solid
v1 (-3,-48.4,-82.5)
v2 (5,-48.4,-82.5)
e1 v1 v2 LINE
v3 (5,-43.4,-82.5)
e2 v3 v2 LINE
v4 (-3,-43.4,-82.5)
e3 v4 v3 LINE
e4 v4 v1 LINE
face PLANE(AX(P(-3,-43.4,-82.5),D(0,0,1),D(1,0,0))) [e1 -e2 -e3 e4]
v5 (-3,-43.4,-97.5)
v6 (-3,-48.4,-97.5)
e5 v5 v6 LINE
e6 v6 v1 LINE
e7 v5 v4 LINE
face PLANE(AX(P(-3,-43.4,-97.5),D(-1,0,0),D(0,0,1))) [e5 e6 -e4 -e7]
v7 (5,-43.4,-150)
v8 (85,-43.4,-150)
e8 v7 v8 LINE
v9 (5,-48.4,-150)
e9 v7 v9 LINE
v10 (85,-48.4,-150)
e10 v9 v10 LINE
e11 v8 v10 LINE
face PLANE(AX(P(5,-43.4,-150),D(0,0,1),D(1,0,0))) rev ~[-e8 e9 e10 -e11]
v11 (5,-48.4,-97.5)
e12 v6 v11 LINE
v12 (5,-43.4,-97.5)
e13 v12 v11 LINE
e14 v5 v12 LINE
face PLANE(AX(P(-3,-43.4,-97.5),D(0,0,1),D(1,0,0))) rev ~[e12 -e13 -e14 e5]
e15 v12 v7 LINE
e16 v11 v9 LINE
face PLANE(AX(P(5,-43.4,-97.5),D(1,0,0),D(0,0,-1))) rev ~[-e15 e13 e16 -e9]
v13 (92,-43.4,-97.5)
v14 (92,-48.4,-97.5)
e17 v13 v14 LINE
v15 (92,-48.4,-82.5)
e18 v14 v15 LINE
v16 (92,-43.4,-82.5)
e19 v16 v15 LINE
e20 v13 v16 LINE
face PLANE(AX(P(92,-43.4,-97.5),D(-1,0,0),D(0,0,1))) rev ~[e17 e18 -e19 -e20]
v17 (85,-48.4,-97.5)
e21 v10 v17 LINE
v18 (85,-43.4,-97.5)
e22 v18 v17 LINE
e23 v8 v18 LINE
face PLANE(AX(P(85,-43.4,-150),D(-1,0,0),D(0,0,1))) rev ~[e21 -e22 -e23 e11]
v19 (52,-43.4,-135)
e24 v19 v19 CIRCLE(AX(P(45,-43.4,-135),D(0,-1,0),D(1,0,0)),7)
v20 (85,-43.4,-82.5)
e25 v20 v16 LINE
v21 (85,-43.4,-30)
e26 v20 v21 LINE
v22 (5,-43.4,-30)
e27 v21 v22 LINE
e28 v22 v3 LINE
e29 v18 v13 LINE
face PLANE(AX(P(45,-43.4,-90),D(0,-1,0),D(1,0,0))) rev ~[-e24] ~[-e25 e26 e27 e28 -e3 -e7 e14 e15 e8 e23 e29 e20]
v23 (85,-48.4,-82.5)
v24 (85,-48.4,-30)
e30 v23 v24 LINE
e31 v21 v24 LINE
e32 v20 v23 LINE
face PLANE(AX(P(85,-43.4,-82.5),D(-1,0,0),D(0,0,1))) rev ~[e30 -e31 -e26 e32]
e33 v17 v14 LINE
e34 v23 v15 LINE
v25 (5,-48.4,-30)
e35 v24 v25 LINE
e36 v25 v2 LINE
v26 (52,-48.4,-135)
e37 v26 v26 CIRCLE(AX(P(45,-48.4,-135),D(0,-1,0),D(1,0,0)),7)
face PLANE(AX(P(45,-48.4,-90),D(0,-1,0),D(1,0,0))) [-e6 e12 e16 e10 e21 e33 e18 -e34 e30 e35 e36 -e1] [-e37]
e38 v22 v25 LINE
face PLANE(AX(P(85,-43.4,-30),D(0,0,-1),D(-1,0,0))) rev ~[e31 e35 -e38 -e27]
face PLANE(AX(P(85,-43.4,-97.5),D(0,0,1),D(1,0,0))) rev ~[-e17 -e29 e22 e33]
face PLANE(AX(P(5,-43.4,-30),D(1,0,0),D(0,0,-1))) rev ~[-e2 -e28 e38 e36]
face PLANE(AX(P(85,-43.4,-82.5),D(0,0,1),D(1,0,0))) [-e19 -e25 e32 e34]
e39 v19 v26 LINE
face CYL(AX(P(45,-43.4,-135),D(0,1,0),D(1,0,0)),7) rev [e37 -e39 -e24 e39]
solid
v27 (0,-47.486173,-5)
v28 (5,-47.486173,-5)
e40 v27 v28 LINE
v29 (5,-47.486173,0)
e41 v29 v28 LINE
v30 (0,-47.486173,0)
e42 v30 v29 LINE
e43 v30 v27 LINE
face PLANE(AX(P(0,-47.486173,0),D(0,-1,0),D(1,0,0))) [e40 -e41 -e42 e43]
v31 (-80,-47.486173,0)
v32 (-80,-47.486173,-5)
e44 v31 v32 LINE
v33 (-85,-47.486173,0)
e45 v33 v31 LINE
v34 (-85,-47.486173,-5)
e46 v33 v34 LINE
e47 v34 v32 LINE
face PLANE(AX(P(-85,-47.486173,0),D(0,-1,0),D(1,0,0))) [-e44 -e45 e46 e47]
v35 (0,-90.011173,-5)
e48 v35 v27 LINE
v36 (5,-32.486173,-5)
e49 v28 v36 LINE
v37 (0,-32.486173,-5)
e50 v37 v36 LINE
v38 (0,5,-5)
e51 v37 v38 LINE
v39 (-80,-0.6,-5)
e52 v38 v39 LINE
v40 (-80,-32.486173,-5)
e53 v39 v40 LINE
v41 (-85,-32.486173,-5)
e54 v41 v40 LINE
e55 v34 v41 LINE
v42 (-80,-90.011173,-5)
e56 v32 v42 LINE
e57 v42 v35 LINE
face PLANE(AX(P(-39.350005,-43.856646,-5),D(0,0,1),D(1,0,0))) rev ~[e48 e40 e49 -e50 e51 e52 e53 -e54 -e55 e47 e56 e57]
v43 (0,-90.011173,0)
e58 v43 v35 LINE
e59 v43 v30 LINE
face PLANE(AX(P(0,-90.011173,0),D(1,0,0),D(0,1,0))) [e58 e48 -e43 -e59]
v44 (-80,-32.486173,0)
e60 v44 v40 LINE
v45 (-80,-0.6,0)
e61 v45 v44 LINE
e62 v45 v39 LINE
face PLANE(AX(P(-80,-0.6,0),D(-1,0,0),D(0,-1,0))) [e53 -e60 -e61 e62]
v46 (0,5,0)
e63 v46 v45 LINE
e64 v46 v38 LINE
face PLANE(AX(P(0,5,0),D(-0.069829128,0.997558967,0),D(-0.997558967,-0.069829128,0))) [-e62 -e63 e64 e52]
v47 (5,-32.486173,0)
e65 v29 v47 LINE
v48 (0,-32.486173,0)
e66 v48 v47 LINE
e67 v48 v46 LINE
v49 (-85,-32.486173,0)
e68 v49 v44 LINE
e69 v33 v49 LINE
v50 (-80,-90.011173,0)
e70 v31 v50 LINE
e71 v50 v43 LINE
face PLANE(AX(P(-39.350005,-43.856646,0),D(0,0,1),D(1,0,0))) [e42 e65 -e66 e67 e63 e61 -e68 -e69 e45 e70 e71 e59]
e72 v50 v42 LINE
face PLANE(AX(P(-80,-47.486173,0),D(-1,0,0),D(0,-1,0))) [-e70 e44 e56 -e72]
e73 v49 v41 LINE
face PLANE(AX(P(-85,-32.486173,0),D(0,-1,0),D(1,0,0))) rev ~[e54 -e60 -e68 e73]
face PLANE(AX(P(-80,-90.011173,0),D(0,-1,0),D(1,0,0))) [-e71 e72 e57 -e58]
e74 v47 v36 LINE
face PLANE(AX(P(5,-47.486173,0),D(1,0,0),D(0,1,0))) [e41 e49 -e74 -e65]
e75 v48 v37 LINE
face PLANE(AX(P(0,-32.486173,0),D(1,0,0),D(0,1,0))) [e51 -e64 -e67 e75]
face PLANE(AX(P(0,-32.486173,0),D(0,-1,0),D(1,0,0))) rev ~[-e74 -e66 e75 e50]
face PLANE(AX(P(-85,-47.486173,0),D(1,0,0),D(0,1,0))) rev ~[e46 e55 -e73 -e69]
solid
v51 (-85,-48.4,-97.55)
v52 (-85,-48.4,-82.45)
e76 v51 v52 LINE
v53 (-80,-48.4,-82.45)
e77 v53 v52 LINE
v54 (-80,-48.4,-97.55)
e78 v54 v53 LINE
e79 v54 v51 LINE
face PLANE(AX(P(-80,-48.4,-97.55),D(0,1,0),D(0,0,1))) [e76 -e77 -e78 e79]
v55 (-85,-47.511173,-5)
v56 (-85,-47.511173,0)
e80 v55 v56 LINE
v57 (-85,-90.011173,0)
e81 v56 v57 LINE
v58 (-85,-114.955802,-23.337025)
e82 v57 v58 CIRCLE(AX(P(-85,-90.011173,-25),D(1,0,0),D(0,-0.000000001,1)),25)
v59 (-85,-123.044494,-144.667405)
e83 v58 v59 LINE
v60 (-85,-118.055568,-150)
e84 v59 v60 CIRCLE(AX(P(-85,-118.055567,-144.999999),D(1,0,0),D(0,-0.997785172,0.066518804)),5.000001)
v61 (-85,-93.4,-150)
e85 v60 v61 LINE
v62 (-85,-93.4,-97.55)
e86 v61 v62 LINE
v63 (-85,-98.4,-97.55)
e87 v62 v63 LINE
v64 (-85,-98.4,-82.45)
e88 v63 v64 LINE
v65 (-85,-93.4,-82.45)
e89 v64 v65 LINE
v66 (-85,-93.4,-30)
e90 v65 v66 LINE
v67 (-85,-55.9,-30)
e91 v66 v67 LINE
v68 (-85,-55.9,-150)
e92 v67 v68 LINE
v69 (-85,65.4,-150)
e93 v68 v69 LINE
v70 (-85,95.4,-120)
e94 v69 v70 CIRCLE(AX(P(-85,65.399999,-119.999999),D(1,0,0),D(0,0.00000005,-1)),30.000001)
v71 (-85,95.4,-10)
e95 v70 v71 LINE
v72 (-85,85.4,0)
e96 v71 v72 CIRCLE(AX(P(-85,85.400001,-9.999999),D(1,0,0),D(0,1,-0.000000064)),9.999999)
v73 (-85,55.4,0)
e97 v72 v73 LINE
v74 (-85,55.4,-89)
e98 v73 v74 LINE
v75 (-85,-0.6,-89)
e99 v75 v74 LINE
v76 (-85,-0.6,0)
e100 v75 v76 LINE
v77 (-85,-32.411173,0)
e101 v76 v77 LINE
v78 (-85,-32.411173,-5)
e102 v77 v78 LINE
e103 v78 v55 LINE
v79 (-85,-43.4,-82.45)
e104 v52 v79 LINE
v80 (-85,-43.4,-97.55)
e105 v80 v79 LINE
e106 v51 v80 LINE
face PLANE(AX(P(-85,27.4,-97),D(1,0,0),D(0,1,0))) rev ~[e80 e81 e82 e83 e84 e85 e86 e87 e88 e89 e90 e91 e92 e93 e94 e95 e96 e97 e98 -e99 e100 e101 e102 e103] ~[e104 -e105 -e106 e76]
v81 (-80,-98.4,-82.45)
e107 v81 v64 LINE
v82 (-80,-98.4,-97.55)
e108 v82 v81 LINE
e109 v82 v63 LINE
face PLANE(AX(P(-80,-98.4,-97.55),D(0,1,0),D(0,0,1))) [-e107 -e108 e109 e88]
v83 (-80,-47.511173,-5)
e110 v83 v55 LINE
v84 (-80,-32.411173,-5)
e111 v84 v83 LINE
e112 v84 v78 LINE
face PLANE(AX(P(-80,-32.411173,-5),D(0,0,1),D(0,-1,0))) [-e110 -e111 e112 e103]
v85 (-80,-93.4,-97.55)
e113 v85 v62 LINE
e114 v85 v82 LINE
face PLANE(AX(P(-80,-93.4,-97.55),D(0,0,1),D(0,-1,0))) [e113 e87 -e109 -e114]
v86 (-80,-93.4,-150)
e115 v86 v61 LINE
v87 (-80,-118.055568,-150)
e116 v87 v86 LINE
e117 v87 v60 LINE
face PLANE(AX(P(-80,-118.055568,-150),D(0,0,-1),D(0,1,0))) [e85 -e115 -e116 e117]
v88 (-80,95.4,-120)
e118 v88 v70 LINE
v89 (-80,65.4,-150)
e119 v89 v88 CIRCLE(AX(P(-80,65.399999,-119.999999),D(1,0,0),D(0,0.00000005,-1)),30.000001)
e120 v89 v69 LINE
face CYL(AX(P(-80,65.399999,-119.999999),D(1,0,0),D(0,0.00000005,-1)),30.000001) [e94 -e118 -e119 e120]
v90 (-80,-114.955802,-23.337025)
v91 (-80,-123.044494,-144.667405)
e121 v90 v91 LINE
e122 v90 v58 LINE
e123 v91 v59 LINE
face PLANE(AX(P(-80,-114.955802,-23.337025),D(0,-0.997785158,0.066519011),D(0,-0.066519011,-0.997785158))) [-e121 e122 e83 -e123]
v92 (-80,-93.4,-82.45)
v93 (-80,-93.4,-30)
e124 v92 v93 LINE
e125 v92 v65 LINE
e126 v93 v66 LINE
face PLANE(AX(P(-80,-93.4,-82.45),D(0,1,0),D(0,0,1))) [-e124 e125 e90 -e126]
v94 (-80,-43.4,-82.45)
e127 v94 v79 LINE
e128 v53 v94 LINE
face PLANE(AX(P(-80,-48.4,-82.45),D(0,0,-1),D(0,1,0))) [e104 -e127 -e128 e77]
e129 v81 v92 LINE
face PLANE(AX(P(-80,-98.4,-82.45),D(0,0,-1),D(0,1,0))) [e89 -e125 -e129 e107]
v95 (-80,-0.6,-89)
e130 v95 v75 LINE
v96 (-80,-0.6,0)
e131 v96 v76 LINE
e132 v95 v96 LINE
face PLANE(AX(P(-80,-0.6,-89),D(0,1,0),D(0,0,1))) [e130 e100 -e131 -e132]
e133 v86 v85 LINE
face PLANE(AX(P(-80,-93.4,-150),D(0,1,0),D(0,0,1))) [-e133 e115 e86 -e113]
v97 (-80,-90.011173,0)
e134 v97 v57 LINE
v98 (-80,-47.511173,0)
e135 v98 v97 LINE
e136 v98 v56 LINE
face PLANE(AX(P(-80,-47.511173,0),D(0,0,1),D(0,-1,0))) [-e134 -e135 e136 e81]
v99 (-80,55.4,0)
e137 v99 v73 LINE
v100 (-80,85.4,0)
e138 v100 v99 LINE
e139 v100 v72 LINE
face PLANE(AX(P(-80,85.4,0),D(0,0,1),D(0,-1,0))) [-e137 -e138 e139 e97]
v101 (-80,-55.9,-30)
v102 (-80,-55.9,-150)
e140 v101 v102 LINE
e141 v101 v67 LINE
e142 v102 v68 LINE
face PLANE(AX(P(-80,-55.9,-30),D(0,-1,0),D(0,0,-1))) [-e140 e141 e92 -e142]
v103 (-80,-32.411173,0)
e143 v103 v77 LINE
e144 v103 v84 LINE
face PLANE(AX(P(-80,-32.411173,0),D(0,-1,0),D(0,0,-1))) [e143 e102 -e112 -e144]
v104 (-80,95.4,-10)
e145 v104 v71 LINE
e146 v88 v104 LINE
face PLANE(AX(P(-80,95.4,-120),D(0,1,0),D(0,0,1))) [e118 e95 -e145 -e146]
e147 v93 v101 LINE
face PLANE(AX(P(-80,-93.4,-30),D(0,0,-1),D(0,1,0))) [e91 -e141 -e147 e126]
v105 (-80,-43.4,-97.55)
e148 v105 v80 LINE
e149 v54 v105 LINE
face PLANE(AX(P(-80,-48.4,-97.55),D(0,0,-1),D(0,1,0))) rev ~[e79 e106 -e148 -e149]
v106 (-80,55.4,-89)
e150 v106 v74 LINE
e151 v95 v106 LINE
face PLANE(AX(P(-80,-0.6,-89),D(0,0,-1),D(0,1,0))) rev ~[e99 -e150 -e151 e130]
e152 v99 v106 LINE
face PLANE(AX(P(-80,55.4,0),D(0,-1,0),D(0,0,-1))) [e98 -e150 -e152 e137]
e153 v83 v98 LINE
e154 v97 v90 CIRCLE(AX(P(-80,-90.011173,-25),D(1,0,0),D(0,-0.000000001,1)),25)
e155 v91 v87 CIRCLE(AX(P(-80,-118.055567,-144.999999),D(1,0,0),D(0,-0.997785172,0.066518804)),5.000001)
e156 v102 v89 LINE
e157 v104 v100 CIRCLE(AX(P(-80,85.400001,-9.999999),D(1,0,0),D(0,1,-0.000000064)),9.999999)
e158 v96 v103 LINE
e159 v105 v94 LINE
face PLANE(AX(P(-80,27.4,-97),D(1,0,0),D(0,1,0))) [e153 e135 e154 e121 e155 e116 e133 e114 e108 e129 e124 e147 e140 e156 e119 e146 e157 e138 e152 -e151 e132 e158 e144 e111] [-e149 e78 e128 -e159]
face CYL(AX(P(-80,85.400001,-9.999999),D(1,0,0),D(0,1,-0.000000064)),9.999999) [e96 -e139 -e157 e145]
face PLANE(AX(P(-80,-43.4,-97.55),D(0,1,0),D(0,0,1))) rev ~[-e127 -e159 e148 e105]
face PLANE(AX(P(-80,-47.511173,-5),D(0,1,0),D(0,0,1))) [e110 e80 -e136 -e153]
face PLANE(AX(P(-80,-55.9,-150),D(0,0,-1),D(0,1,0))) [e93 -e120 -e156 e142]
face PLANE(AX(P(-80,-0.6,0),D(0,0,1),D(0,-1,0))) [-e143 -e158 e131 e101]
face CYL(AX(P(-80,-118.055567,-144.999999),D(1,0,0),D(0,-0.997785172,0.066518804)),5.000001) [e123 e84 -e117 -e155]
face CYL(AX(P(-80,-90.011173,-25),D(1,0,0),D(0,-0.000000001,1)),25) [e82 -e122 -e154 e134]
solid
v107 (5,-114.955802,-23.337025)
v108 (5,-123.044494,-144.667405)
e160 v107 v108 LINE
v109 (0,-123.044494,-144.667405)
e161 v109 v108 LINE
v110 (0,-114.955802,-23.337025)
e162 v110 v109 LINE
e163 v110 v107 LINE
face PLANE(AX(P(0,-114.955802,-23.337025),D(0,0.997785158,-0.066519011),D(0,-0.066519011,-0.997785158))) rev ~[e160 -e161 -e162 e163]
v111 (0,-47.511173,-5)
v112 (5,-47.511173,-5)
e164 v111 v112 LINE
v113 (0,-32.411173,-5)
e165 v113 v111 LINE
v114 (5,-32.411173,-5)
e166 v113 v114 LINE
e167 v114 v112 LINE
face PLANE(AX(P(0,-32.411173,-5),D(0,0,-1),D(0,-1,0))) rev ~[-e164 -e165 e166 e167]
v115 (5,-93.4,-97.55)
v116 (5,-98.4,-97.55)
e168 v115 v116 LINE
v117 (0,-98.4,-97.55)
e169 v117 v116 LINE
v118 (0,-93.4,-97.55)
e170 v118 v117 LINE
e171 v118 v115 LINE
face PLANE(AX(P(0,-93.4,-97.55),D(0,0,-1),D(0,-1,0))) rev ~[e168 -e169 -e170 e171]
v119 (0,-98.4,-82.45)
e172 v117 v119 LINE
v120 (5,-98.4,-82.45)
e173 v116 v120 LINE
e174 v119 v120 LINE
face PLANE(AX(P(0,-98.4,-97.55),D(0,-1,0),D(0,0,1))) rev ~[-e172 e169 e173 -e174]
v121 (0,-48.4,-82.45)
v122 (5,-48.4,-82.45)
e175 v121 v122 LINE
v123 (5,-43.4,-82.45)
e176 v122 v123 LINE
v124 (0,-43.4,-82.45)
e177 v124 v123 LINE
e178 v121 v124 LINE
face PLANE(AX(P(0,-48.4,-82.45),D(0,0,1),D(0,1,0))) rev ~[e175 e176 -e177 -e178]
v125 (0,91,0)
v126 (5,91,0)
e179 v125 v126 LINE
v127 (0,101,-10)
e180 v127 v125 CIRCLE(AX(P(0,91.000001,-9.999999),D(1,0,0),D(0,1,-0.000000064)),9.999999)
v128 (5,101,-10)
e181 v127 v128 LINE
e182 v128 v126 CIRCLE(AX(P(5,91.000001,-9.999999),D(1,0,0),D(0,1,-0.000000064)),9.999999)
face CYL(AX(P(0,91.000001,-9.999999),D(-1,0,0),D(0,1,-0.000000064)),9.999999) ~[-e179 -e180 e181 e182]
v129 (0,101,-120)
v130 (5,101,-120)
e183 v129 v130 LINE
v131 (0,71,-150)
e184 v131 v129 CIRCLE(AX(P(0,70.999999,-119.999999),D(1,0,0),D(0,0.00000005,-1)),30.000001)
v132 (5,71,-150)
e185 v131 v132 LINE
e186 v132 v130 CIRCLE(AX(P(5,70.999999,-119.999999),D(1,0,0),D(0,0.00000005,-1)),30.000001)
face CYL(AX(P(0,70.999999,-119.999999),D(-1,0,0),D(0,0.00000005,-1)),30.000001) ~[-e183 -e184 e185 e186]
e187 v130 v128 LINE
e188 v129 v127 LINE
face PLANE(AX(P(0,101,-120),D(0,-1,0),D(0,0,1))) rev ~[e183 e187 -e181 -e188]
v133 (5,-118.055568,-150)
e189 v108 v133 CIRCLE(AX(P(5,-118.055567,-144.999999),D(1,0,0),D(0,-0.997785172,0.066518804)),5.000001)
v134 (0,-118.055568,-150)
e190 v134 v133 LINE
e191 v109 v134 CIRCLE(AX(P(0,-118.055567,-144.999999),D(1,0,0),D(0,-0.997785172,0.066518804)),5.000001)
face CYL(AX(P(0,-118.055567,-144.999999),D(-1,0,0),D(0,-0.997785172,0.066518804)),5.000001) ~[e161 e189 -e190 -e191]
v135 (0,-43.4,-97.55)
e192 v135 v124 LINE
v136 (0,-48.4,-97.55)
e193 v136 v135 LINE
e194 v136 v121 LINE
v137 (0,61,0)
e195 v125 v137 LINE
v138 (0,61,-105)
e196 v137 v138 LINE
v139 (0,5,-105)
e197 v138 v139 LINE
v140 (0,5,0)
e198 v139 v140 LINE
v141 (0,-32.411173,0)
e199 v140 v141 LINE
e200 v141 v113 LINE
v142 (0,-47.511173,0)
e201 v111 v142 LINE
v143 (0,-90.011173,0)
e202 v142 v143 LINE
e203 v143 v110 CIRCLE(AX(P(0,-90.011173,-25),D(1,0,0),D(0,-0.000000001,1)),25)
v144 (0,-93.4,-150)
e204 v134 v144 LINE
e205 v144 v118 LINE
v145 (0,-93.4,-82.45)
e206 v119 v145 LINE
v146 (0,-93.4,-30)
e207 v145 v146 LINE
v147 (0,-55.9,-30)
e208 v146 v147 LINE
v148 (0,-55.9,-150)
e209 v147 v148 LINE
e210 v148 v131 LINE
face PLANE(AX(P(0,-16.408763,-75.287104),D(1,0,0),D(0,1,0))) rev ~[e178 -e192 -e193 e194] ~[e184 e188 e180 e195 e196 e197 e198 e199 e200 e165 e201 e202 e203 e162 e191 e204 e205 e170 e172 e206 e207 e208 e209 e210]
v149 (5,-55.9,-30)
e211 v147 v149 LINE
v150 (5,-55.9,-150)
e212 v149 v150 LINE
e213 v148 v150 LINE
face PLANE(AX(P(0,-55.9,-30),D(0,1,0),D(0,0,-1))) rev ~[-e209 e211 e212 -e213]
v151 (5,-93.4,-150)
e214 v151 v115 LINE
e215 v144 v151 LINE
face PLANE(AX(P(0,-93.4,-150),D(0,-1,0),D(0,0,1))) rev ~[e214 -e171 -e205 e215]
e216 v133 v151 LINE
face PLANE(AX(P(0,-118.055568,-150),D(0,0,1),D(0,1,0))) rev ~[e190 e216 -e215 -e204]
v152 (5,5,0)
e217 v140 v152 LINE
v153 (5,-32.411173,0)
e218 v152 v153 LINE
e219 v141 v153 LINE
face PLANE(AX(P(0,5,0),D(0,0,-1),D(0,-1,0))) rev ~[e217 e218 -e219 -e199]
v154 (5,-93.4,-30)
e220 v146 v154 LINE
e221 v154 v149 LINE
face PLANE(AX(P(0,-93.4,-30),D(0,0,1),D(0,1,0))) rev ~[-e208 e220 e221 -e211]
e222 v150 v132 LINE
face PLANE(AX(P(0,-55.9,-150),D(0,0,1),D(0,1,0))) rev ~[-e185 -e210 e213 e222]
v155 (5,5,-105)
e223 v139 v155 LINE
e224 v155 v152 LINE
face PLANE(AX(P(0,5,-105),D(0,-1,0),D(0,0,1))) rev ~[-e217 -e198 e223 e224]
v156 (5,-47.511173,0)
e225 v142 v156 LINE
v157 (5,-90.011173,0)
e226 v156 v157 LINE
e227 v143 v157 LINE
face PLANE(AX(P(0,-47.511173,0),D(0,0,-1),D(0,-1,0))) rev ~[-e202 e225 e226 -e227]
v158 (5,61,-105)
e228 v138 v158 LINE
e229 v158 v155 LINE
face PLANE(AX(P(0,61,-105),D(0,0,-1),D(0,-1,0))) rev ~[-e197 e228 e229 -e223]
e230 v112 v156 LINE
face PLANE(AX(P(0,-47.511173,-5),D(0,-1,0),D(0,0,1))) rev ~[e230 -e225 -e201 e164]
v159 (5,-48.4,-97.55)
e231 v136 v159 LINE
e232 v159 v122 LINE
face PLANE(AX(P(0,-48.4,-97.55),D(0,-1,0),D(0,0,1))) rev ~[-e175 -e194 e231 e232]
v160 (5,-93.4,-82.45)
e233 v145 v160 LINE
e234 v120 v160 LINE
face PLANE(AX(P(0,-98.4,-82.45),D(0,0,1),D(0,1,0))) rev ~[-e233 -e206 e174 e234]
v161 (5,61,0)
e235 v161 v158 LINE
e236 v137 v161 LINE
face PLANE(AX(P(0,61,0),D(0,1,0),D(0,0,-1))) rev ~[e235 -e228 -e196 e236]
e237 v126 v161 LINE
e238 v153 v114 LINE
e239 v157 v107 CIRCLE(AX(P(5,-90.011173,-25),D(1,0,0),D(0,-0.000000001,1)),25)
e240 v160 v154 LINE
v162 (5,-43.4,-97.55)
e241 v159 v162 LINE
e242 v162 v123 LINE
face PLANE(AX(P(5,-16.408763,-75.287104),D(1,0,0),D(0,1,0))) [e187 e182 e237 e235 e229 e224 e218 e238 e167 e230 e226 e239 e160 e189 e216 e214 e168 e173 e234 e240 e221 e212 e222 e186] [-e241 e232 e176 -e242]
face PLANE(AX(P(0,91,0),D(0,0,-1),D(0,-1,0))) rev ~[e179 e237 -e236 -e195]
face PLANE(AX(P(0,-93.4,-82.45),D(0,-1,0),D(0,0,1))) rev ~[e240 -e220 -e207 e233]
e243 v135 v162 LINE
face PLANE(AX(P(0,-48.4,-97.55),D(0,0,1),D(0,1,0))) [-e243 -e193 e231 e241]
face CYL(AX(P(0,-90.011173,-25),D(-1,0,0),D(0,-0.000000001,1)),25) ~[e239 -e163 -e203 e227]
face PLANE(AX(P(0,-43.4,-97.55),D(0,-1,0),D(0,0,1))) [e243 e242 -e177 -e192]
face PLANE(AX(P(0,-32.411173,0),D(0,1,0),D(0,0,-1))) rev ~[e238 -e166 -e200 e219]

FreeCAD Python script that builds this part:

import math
import FreeCAD as App
import Part
import Sketcher

V = App.Vector
Q = App.Units.Quantity

doc = App.newDocument("Part")
body = doc.addObject("PartDesign::Body", "Body")

# Sketch on YZ plane
sketch1 = body.newObject("Sketcher::SketchObject", "Sketch")
sketch1.AttachmentSupport = (doc.getObject("YZ_Plane"), [""])
sketch1.MapMode = "FlatFace"
sketch1.addGeometry(Part.LineSegment(V(5, -105, 0), V(5, 0, 0)), False)
sketch1.addGeometry(Part.LineSegment(V(5, 0, 0), V(-32.411173, 0, 0)), False)
sketch1.addGeometry(Part.LineSegment(V(-32.411173, 0, 0), V(-32.411173, -5, 0)), False)
sketch1.addGeometry(Part.LineSegment(V(-32.411173, -5, 0), V(-47.511173, -5, 0)), False)
sketch1.addGeometry(Part.LineSegment(V(-47.511173, -5, 0), V(-47.511173, 0, 0)), False)
sketch1.addGeometry(Part.LineSegment(V(-47.511173, 0, 0), V(-90.011173, 0, 0)), False)
sketch1.addGeometry(Part.ArcOfCircle(Part.Circle(V(-90.011173, -25, 0), V(0, 0, 1), 25), math.radians(90), math.radians(176.185926)), False)
sketch1.addGeometry(Part.LineSegment(V(-114.955802, -23.337025, 0), V(-123.044494, -144.667405, 0)), False)
sketch1.addGeometry(Part.ArcOfCircle(Part.Circle(V(-118.055567, -144.999999, 0), V(0, 0, 1), 5.000001), math.radians(176.185937), math.radians(269.999991)), False)
sketch1.addGeometry(Part.LineSegment(V(-118.055568, -150, 0), V(-93.4, -150, 0)), False)
sketch1.addGeometry(Part.LineSegment(V(-93.4, -150, 0), V(-93.4, -97.55, 0)), False)
sketch1.addGeometry(Part.LineSegment(V(-93.4, -97.55, 0), V(-98.4, -97.55, 0)), False)
sketch1.addGeometry(Part.LineSegment(V(-98.4, -97.55, 0), V(-98.4, -82.45, 0)), False)
sketch1.addGeometry(Part.LineSegment(V(-98.4, -82.45, 0), V(-93.4, -82.45, 0)), False)
sketch1.addGeometry(Part.LineSegment(V(-93.4, -82.45, 0), V(-93.4, -30, 0)), False)
sketch1.addGeometry(Part.LineSegment(V(-93.4, -30, 0), V(-55.9, -30, 0)), False)
sketch1.addGeometry(Part.LineSegment(V(-55.9, -30, 0), V(-55.9, -150, 0)), False)
sketch1.addGeometry(Part.LineSegment(V(-55.9, -150, 0), V(71, -150, 0)), False)
sketch1.addGeometry(Part.ArcOfCircle(Part.Circle(V(70.999999, -119.999999, 0), V(0, 0, 1), 30.000001), math.radians(-89.999997), math.radians(-0.000003)), False)
sketch1.addGeometry(Part.LineSegment(V(101, -120, 0), V(101, -10, 0)), False)
sketch1.addGeometry(Part.ArcOfCircle(Part.Circle(V(91.000001, -9.999999, 0), V(0, 0, 1), 9.999999), math.radians(-0.000004), math.radians(90.000004)), False)
sketch1.addGeometry(Part.LineSegment(V(91, 0, 0), V(61, 0, 0)), False)
sketch1.addGeometry(Part.LineSegment(V(61, 0, 0), V(61, -105, 0)), False)
sketch1.addGeometry(Part.LineSegment(V(61, -105, 0), V(5, -105, 0)), False)
sketch1.addGeometry(Part.LineSegment(V(-43.4, -97.55, 0), V(-48.4, -97.55, 0)), False)
sketch1.addGeometry(Part.LineSegment(V(-48.4, -97.55, 0), V(-48.4, -82.45, 0)), False)
sketch1.addGeometry(Part.LineSegment(V(-48.4, -82.45, 0), V(-43.4, -82.45, 0)), False)
sketch1.addGeometry(Part.LineSegment(V(-43.4, -82.45, 0), V(-43.4, -97.55, 0)), False)
sketch1.addConstraint(Sketcher.Constraint("Coincident", 0, 2, 1, 1))
sketch1.addConstraint(Sketcher.Constraint("Coincident", 1, 2, 2, 1))
sketch1.addConstraint(Sketcher.Constraint("Coincident", 2, 2, 3, 1))
sketch1.addConstraint(Sketcher.Constraint("Coincident", 3, 2, 4, 1))
sketch1.addConstraint(Sketcher.Constraint("Coincident", 4, 2, 5, 1))
sketch1.addConstraint(Sketcher.Constraint("Tangent", 5, 2, 6, 1))
sketch1.addConstraint(Sketcher.Constraint("Tangent", 6, 2, 7, 1))
sketch1.addConstraint(Sketcher.Constraint("Tangent", 7, 2, 8, 1))
sketch1.addConstraint(Sketcher.Constraint("Tangent", 8, 2, 9, 1))
sketch1.addConstraint(Sketcher.Constraint("Coincident", 9, 2, 10, 1))
sketch1.addConstraint(Sketcher.Constraint("Coincident", 10, 2, 11, 1))
sketch1.addConstraint(Sketcher.Constraint("Coincident", 11, 2, 12, 1))
sketch1.addConstraint(Sketcher.Constraint("Coincident", 12, 2, 13, 1))
sketch1.addConstraint(Sketcher.Constraint("Coincident", 13, 2, 14, 1))
sketch1.addConstraint(Sketcher.Constraint("Coincident", 14, 2, 15, 1))
sketch1.addConstraint(Sketcher.Constraint("Coincident", 15, 2, 16, 1))
sketch1.addConstraint(Sketcher.Constraint("Coincident", 16, 2, 17, 1))
sketch1.addConstraint(Sketcher.Constraint("Tangent", 17, 2, 18, 1))
sketch1.addConstraint(Sketcher.Constraint("Tangent", 18, 2, 19, 1))
sketch1.addConstraint(Sketcher.Constraint("Tangent", 19, 2, 20, 1))
sketch1.addConstraint(Sketcher.Constraint("Tangent", 20, 2, 21, 1))
sketch1.addConstraint(Sketcher.Constraint("Coincident", 21, 2, 22, 1))
sketch1.addConstraint(Sketcher.Constraint("Coincident", 22, 2, 23, 1))
sketch1.addConstraint(Sketcher.Constraint("Coincident", 23, 2, 0, 1))
sketch1.addConstraint(Sketcher.Constraint("Coincident", 24, 2, 25, 1))
sketch1.addConstraint(Sketcher.Constraint("Coincident", 25, 2, 26, 1))
sketch1.addConstraint(Sketcher.Constraint("Coincident", 26, 2, 27, 1))
sketch1.addConstraint(Sketcher.Constraint("Coincident", 27, 2, 24, 1))
sketch1.addConstraint(Sketcher.Constraint("Vertical", 0))
sketch1.addConstraint(Sketcher.Constraint("Horizontal", 1))
sketch1.addConstraint(Sketcher.Constraint("Vertical", 2))
sketch1.addConstraint(Sketcher.Constraint("Horizontal", 3))
sketch1.addConstraint(Sketcher.Constraint("Vertical", 4))
sketch1.addConstraint(Sketcher.Constraint("Horizontal", 5))
sketch1.addConstraint(Sketcher.Constraint("Horizontal", 9))
sketch1.addConstraint(Sketcher.Constraint("Vertical", 10))
sketch1.addConstraint(Sketcher.Constraint("Horizontal", 11))
sketch1.addConstraint(Sketcher.Constraint("Vertical", 12))
sketch1.addConstraint(Sketcher.Constraint("Horizontal", 13))
sketch1.addConstraint(Sketcher.Constraint("Vertical", 14))
sketch1.addConstraint(Sketcher.Constraint("Horizontal", 15))
sketch1.addConstraint(Sketcher.Constraint("Vertical", 16))
sketch1.addConstraint(Sketcher.Constraint("Horizontal", 17))
sketch1.addConstraint(Sketcher.Constraint("Vertical", 19))
sketch1.addConstraint(Sketcher.Constraint("Horizontal", 21))
sketch1.addConstraint(Sketcher.Constraint("Vertical", 22))
sketch1.addConstraint(Sketcher.Constraint("Horizontal", 23))
sketch1.addConstraint(Sketcher.Constraint("Horizontal", 24))
sketch1.addConstraint(Sketcher.Constraint("Vertical", 25))
sketch1.addConstraint(Sketcher.Constraint("Horizontal", 26))
sketch1.addConstraint(Sketcher.Constraint("Vertical", 27))
sketch1.addConstraint(Sketcher.Constraint("PointOnObject", 0, 2, -1))
sketch1.addConstraint(Sketcher.Constraint("PointOnObject", 4, 2, -1))
sketch1.addConstraint(Sketcher.Constraint("PointOnObject", 20, 2, -1))
sketch1.addConstraint(Sketcher.Constraint("Horizontal", 9, 2, 16, 2))
sketch1.addConstraint(Sketcher.Constraint("Horizontal", 11, 2, 24, 2))
sketch1.addConstraint(Sketcher.Constraint("Horizontal", 13, 2, 25, 2))
sketch1.addConstraint(Sketcher.Constraint("Vertical", 10, 2, 13, 2))
sketch1.addConstraint(Sketcher.Constraint("Equal", 13, 24))
sketch1.addConstraint(Sketcher.Constraint("Equal", 26, 2))
sketch1.addConstraint(Sketcher.Constraint("Equal", 3, 12))
sketch1.addConstraint(Sketcher.Constraint("Equal", 10, 14))
sketch1.addConstraint(Sketcher.Constraint("Radius", 6, Q("25 mm")))
sketch1.addConstraint(Sketcher.Constraint("Radius", 8, Q("5.000001 mm")))
sketch1.addConstraint(Sketcher.Constraint("Radius", 18, Q("30.000001 mm")))
sketch1.addConstraint(Sketcher.Constraint("Radius", 20, Q("9.999999 mm")))
sketch1.addConstraint(Sketcher.Constraint("DistanceX", 11, 2, 11, 1, Q("5 mm")))
sketch1.addConstraint(Sketcher.Constraint("DistanceX", 21, 2, 21, 1, Q("30 mm")))
sketch1.addConstraint(Sketcher.Constraint("DistanceX", 23, 2, 23, 1, Q("56 mm")))
sketch1.addConstraint(Sketcher.Constraint("DistanceY", 0, 1, 0, 2, Q("105 mm")))
sketch1.addConstraint(Sketcher.Constraint("DistanceY", 16, 2, 16, 1, Q("120 mm")))
sketch1.addConstraint(Sketcher.Constraint("DistanceY", 19, 1, 19, 2, Q("110 mm")))
sketch1.addConstraint(Sketcher.Constraint("DistanceX", 3, 2, 3, 1, Q("15.1 mm")))
sketch1.addConstraint(Sketcher.Constraint("DistanceX", 5, 2, 5, 1, Q("42.5 mm")))
sketch1.addConstraint(Sketcher.Constraint("DistanceX", 15, 1, 15, 2, Q("37.5 mm")))
sketch1.addConstraint(Sketcher.Constraint("DistanceX", 17, 1, 17, 2, Q("126.9 mm")))
sketch1.addConstraint(Sketcher.Constraint("DistanceX", -1, 1, 18, 3, Q("70.999999 mm")))
sketch1.addConstraint(Sketcher.Constraint("DistanceX", 10, 2, 24, 2, Q("45 mm")))
sketch1.addConstraint(Sketcher.Constraint("DistanceX", 1, 2, 1, 1, Q("37.411173 mm")))
sketch1.addConstraint(Sketcher.Constraint("DistanceX", 9, 1, 9, 2, Q("24.655568 mm")))
pad1 = body.newObject("PartDesign::Pad", "Pad")
pad1.Profile = sketch1
pad1.Length = 5
body2 = doc.addObject("PartDesign::Body", "Body001")

# Sketch on XZ plane
sketch2 = body2.newObject("Sketcher::SketchObject", "Sketch001")
sketch2.AttachmentSupport = (doc.getObject("XZ_Plane001"), [""])
sketch2.MapMode = "FlatFace"
sketch2.AttachmentOffset = App.Placement(V(0, 0, 43.4), App.Rotation())
sketch2.addGeometry(Part.LineSegment(V(85, -30, 0), V(5, -30, 0)), False)
sketch2.addGeometry(Part.LineSegment(V(5, -30, 0), V(5, -82.5, 0)), False)
sketch2.addGeometry(Part.LineSegment(V(5, -82.5, 0), V(-3, -82.5, 0)), False)
sketch2.addGeometry(Part.LineSegment(V(-3, -82.5, 0), V(-3, -97.5, 0)), False)
sketch2.addGeometry(Part.LineSegment(V(-3, -97.5, 0), V(5, -97.5, 0)), False)
sketch2.addGeometry(Part.LineSegment(V(5, -97.5, 0), V(5, -150, 0)), False)
sketch2.addGeometry(Part.LineSegment(V(5, -150, 0), V(85, -150, 0)), False)
sketch2.addGeometry(Part.LineSegment(V(85, -150, 0), V(85, -97.5, 0)), False)
sketch2.addGeometry(Part.LineSegment(V(85, -97.5, 0), V(92, -97.5, 0)), False)
sketch2.addGeometry(Part.LineSegment(V(92, -97.5, 0), V(92, -82.5, 0)), False)
sketch2.addGeometry(Part.LineSegment(V(92, -82.5, 0), V(85, -82.5, 0)), False)
sketch2.addGeometry(Part.LineSegment(V(85, -82.5, 0), V(85, -30, 0)), False)
sketch2.addGeometry(Part.Circle(V(45, -135, 0), V(0, 0, 1), 7), False)
sketch2.addConstraint(Sketcher.Constraint("Coincident", 0, 2, 1, 1))
sketch2.addConstraint(Sketcher.Constraint("Coincident", 1, 2, 2, 1))
sketch2.addConstraint(Sketcher.Constraint("Coincident", 2, 2, 3, 1))
sketch2.addConstraint(Sketcher.Constraint("Coincident", 3, 2, 4, 1))
sketch2.addConstraint(Sketcher.Constraint("Coincident", 4, 2, 5, 1))
sketch2.addConstraint(Sketcher.Constraint("Coincident", 5, 2, 6, 1))
sketch2.addConstraint(Sketcher.Constraint("Coincident", 6, 2, 7, 1))
sketch2.addConstraint(Sketcher.Constraint("Coincident", 7, 2, 8, 1))
sketch2.addConstraint(Sketcher.Constraint("Coincident", 8, 2, 9, 1))
sketch2.addConstraint(Sketcher.Constraint("Coincident", 9, 2, 10, 1))
sketch2.addConstraint(Sketcher.Constraint("Coincident", 10, 2, 11, 1))
sketch2.addConstraint(Sketcher.Constraint("Coincident", 11, 2, 0, 1))
sketch2.addConstraint(Sketcher.Constraint("Horizontal", 0))
sketch2.addConstraint(Sketcher.Constraint("Vertical", 1))
sketch2.addConstraint(Sketcher.Constraint("Horizontal", 2))
sketch2.addConstraint(Sketcher.Constraint("Vertical", 3))
sketch2.addConstraint(Sketcher.Constraint("Horizontal", 4))
sketch2.addConstraint(Sketcher.Constraint("Vertical", 5))
sketch2.addConstraint(Sketcher.Constraint("Horizontal", 6))
sketch2.addConstraint(Sketcher.Constraint("Vertical", 7))
sketch2.addConstraint(Sketcher.Constraint("Horizontal", 8))
sketch2.addConstraint(Sketcher.Constraint("Vertical", 9))
sketch2.addConstraint(Sketcher.Constraint("Horizontal", 10))
sketch2.addConstraint(Sketcher.Constraint("Vertical", 11))
sketch2.addConstraint(Sketcher.Constraint("Horizontal", 4, 2, 7, 2))
sketch2.addConstraint(Sketcher.Constraint("Horizontal", 2, 2, 9, 2))
sketch2.addConstraint(Sketcher.Constraint("Vertical", 1, 2, 4, 2))
sketch2.addConstraint(Sketcher.Constraint("Vertical", 7, 2, 10, 2))
sketch2.addConstraint(Sketcher.Constraint("Equal", 1, 5))
sketch2.addConstraint(Sketcher.Constraint("Diameter", 12, Q("14 mm")))
sketch2.addConstraint(Sketcher.Constraint("DistanceX", 0, 2, 0, 1, Q("80 mm")))
sketch2.addConstraint(Sketcher.Constraint("DistanceX", 2, 2, 2, 1, Q("8 mm")))
sketch2.addConstraint(Sketcher.Constraint("DistanceX", 8, 1, 8, 2, Q("7 mm")))
sketch2.addConstraint(Sketcher.Constraint("DistanceY", 3, 2, 3, 1, Q("15 mm")))
sketch2.addConstraint(Sketcher.Constraint("DistanceY", 1, 2, 1, 1, Q("52.5 mm")))
sketch2.addConstraint(Sketcher.Constraint("DistanceX", -1, 1, 12, 3, Q("45 mm")))
sketch2.addConstraint(Sketcher.Constraint("DistanceY", 12, 3, -1, 1, Q("135 mm")))
sketch2.addConstraint(Sketcher.Constraint("DistanceX", -1, 1, 0, 2, Q("5 mm")))
sketch2.addConstraint(Sketcher.Constraint("DistanceY", 0, 2, -1, 1, Q("30 mm")))
pad2 = body2.newObject("PartDesign::Pad", "Pad001")
pad2.Profile = sketch2
pad2.Length = 5
body3 = doc.addObject("PartDesign::Body", "Body002")

# Sketch on YZ plane
sketch3 = body3.newObject("Sketcher::SketchObject", "Sketch002")
sketch3.AttachmentSupport = (doc.getObject("YZ_Plane002"), [""])
sketch3.MapMode = "FlatFace"
sketch3.AttachmentOffset = App.Placement(V(0, 0, -80), App.Rotation())
sketch3.addGeometry(Part.LineSegment(V(55.4, -89, 0), V(-0.6, -89, 0)), False)
sketch3.addGeometry(Part.LineSegment(V(-0.6, -89, 0), V(-0.6, 0, 0)), False)
sketch3.addGeometry(Part.LineSegment(V(-0.6, 0, 0), V(-32.411173, 0, 0)), False)
sketch3.addGeometry(Part.LineSegment(V(-32.411173, 0, 0), V(-32.411173, -5, 0)), False)
sketch3.addGeometry(Part.LineSegment(V(-32.411173, -5, 0), V(-47.511173, -5, 0)), False)
sketch3.addGeometry(Part.LineSegment(V(-47.511173, -5, 0), V(-47.511173, 0, 0)), False)
sketch3.addGeometry(Part.LineSegment(V(-47.511173, 0, 0), V(-90.011173, 0, 0)), False)
sketch3.addGeometry(Part.ArcOfCircle(Part.Circle(V(-90.011173, -25, 0), V(0, 0, 1), 25), math.radians(90), math.radians(176.185926)), False)
sketch3.addGeometry(Part.LineSegment(V(-114.955802, -23.337025, 0), V(-123.044494, -144.667405, 0)), False)
sketch3.addGeometry(Part.ArcOfCircle(Part.Circle(V(-118.055567, -144.999999, 0), V(0, 0, 1), 5.000001), math.radians(176.185937), math.radians(269.999991)), False)
sketch3.addGeometry(Part.LineSegment(V(-118.055568, -150, 0), V(-93.4, -150, 0)), False)
sketch3.addGeometry(Part.LineSegment(V(-93.4, -150, 0), V(-93.4, -97.55, 0)), False)
sketch3.addGeometry(Part.LineSegment(V(-93.4, -97.55, 0), V(-98.4, -97.55, 0)), False)
sketch3.addGeometry(Part.LineSegment(V(-98.4, -97.55, 0), V(-98.4, -82.45, 0)), False)
sketch3.addGeometry(Part.LineSegment(V(-98.4, -82.45, 0), V(-93.4, -82.45, 0)), False)
sketch3.addGeometry(Part.LineSegment(V(-93.4, -82.45, 0), V(-93.4, -30, 0)), False)
sketch3.addGeometry(Part.LineSegment(V(-93.4, -30, 0), V(-55.9, -30, 0)), False)
sketch3.addGeometry(Part.LineSegment(V(-55.9, -30, 0), V(-55.9, -150, 0)), False)
sketch3.addGeometry(Part.LineSegment(V(-55.9, -150, 0), V(65.4, -150, 0)), False)
sketch3.addGeometry(Part.ArcOfCircle(Part.Circle(V(65.399999, -119.999999, 0), V(0, 0, 1), 30.000001), math.radians(-89.999997), math.radians(-0.000003)), False)
sketch3.addGeometry(Part.LineSegment(V(95.4, -120, 0), V(95.4, -10, 0)), False)
sketch3.addGeometry(Part.ArcOfCircle(Part.Circle(V(85.400001, -9.999999, 0), V(0, 0, 1), 9.999999), math.radians(-0.000004), math.radians(90.000004)), False)
sketch3.addGeometry(Part.LineSegment(V(85.4, 0, 0), V(55.4, 0, 0)), False)
sketch3.addGeometry(Part.LineSegment(V(55.4, 0, 0), V(55.4, -89, 0)), False)
sketch3.addGeometry(Part.LineSegment(V(-43.4, -97.55, 0), V(-48.4, -97.55, 0)), False)
sketch3.addGeometry(Part.LineSegment(V(-48.4, -97.55, 0), V(-48.4, -82.45, 0)), False)
sketch3.addGeometry(Part.LineSegment(V(-48.4, -82.45, 0), V(-43.4, -82.45, 0)), False)
sketch3.addGeometry(Part.LineSegment(V(-43.4, -82.45, 0), V(-43.4, -97.55, 0)), False)
sketch3.addConstraint(Sketcher.Constraint("Coincident", 0, 2, 1, 1))
sketch3.addConstraint(Sketcher.Constraint("Coincident", 1, 2, 2, 1))
sketch3.addConstraint(Sketcher.Constraint("Coincident", 2, 2, 3, 1))
sketch3.addConstraint(Sketcher.Constraint("Coincident", 3, 2, 4, 1))
sketch3.addConstraint(Sketcher.Constraint("Coincident", 4, 2, 5, 1))
sketch3.addConstraint(Sketcher.Constraint("Coincident", 5, 2, 6, 1))
sketch3.addConstraint(Sketcher.Constraint("Tangent", 6, 2, 7, 1))
sketch3.addConstraint(Sketcher.Constraint("Tangent", 7, 2, 8, 1))
sketch3.addConstraint(Sketcher.Constraint("Tangent", 8, 2, 9, 1))
sketch3.addConstraint(Sketcher.Constraint("Tangent", 9, 2, 10, 1))
sketch3.addConstraint(Sketcher.Constraint("Coincident", 10, 2, 11, 1))
sketch3.addConstraint(Sketcher.Constraint("Coincident", 11, 2, 12, 1))
sketch3.addConstraint(Sketcher.Constraint("Coincident", 12, 2, 13, 1))
sketch3.addConstraint(Sketcher.Constraint("Coincident", 13, 2, 14, 1))
sketch3.addConstraint(Sketcher.Constraint("Coincident", 14, 2, 15, 1))
sketch3.addConstraint(Sketcher.Constraint("Coincident", 15, 2, 16, 1))
sketch3.addConstraint(Sketcher.Constraint("Coincident", 16, 2, 17, 1))
sketch3.addConstraint(Sketcher.Constraint("Coincident", 17, 2, 18, 1))
sketch3.addConstraint(Sketcher.Constraint("Tangent", 18, 2, 19, 1))
sketch3.addConstraint(Sketcher.Constraint("Tangent", 19, 2, 20, 1))
sketch3.addConstraint(Sketcher.Constraint("Tangent", 20, 2, 21, 1))
sketch3.addConstraint(Sketcher.Constraint("Tangent", 21, 2, 22, 1))
sketch3.addConstraint(Sketcher.Constraint("Coincident", 22, 2, 23, 1))
sketch3.addConstraint(Sketcher.Constraint("Coincident", 23, 2, 0, 1))
sketch3.addConstraint(Sketcher.Constraint("Coincident", 24, 2, 25, 1))
sketch3.addConstraint(Sketcher.Constraint("Coincident", 25, 2, 26, 1))
sketch3.addConstraint(Sketcher.Constraint("Coincident", 26, 2, 27, 1))
sketch3.addConstraint(Sketcher.Constraint("Coincident", 27, 2, 24, 1))
sketch3.addConstraint(Sketcher.Constraint("Horizontal", 0))
sketch3.addConstraint(Sketcher.Constraint("Vertical", 1))
sketch3.addConstraint(Sketcher.Constraint("Horizontal", 2))
sketch3.addConstraint(Sketcher.Constraint("Vertical", 3))
sketch3.addConstraint(Sketcher.Constraint("Horizontal", 4))
sketch3.addConstraint(Sketcher.Constraint("Vertical", 5))
sketch3.addConstraint(Sketcher.Constraint("Horizontal", 6))
sketch3.addConstraint(Sketcher.Constraint("Horizontal", 10))
sketch3.addConstraint(Sketcher.Constraint("Vertical", 11))
sketch3.addConstraint(Sketcher.Constraint("Horizontal", 12))
sketch3.addConstraint(Sketcher.Constraint("Vertical", 13))
sketch3.addConstraint(Sketcher.Constraint("Horizontal", 14))
sketch3.addConstraint(Sketcher.Constraint("Vertical", 15))
sketch3.addConstraint(Sketcher.Constraint("Horizontal", 16))
sketch3.addConstraint(Sketcher.Constraint("Vertical", 17))
sketch3.addConstraint(Sketcher.Constraint("Horizontal", 18))
sketch3.addConstraint(Sketcher.Constraint("Vertical", 20))
sketch3.addConstraint(Sketcher.Constraint("Horizontal", 22))
sketch3.addConstraint(Sketcher.Constraint("Vertical", 23))
sketch3.addConstraint(Sketcher.Constraint("Horizontal", 24))
sketch3.addConstraint(Sketcher.Constraint("Vertical", 25))
sketch3.addConstraint(Sketcher.Constraint("Horizontal", 26))
sketch3.addConstraint(Sketcher.Constraint("Vertical", 27))
sketch3.addConstraint(Sketcher.Constraint("PointOnObject", 1, 2, -1))
sketch3.addConstraint(Sketcher.Constraint("PointOnObject", 5, 2, -1))
sketch3.addConstraint(Sketcher.Constraint("PointOnObject", 21, 2, -1))
sketch3.addConstraint(Sketcher.Constraint("Horizontal", 10, 2, 17, 2))
sketch3.addConstraint(Sketcher.Constraint("Horizontal", 12, 2, 24, 2))
sketch3.addConstraint(Sketcher.Constraint("Horizontal", 14, 2, 25, 2))
sketch3.addConstraint(Sketcher.Constraint("Vertical", 11, 2, 14, 2))
sketch3.addConstraint(Sketcher.Constraint("Equal", 14, 24))
sketch3.addConstraint(Sketcher.Constraint("Equal", 26, 3))
sketch3.addConstraint(Sketcher.Constraint("Equal", 4, 13))
sketch3.addConstraint(Sketcher.Constraint("Equal", 11, 15))
sketch3.addConstraint(Sketcher.Constraint("Radius", 7, Q("25 mm")))
sketch3.addConstraint(Sketcher.Constraint("Radius", 9, Q("5.000001 mm")))
sketch3.addConstraint(Sketcher.Constraint("Radius", 19, Q("30.000001 mm")))
sketch3.addConstraint(Sketcher.Constraint("Radius", 21, Q("9.999999 mm")))
sketch3.addConstraint(Sketcher.Constraint("DistanceX", 0, 2, 0, 1, Q("56 mm")))
sketch3.addConstraint(Sketcher.Constraint("DistanceX", 12, 2, 12, 1, Q("5 mm")))
sketch3.addConstraint(Sketcher.Constraint("DistanceX", 22, 2, 22, 1, Q("30 mm")))
sketch3.addConstraint(Sketcher.Constraint("DistanceY", 1, 1, 1, 2, Q("89 mm")))
sketch3.addConstraint(Sketcher.Constraint("DistanceY", 17, 2, 17, 1, Q("120 mm")))
sketch3.addConstraint(Sketcher.Constraint("DistanceY", 20, 1, 20, 2, Q("110 mm")))
sketch3.addConstraint(Sketcher.Constraint("DistanceX", 4, 2, 4, 1, Q("15.1 mm")))
sketch3.addConstraint(Sketcher.Constraint("DistanceX", 6, 2, 6, 1, Q("42.5 mm")))
sketch3.addConstraint(Sketcher.Constraint("DistanceX", 16, 1, 16, 2, Q("37.5 mm")))
sketch3.addConstraint(Sketcher.Constraint("DistanceX", 18, 1, 18, 2, Q("121.3 mm")))
sketch3.addConstraint(Sketcher.Constraint("DistanceX", 11, 2, 24, 2, Q("45 mm")))
sketch3.addConstraint(Sketcher.Constraint("DistanceX", -1, 1, 19, 3, Q("65.399999 mm")))
sketch3.addConstraint(Sketcher.Constraint("DistanceX", 2, 2, 2, 1, Q("31.811173 mm")))
sketch3.addConstraint(Sketcher.Constraint("DistanceX", 10, 1, 10, 2, Q("24.655568 mm")))
pad3 = body3.newObject("PartDesign::Pad", "Pad002")
pad3.Profile = sketch3
pad3.Length = 5
pad3.Reversed = True
body4 = doc.addObject("PartDesign::Body", "Body003")

# Sketch on XY plane
sketch4 = body4.newObject("Sketcher::SketchObject", "Sketch003")
sketch4.AttachmentSupport = (doc.getObject("XY_Plane003"), [""])
sketch4.MapMode = "FlatFace"
sketch4.addGeometry(Part.LineSegment(V(-80, -90.011173, 0), V(0, -90.011173, 0)), False)
sketch4.addGeometry(Part.LineSegment(V(0, -90.011173, 0), V(0, -47.486173, 0)), False)
sketch4.addGeometry(Part.LineSegment(V(0, -47.486173, 0), V(5, -47.486173, 0)), False)
sketch4.addGeometry(Part.LineSegment(V(5, -47.486173, 0), V(5, -32.486173, 0)), False)
sketch4.addGeometry(Part.LineSegment(V(5, -32.486173, 0), V(0, -32.486173, 0)), False)
sketch4.addGeometry(Part.LineSegment(V(0, -32.486173, 0), V(0, 5, 0)), False)
sketch4.addGeometry(Part.LineSegment(V(0, 5, 0), V(-80, -0.6, 0)), False)
sketch4.addGeometry(Part.LineSegment(V(-80, -0.6, 0), V(-80, -32.486173, 0)), False)
sketch4.addGeometry(Part.LineSegment(V(-80, -32.486173, 0), V(-85, -32.486173, 0)), False)
sketch4.addGeometry(Part.LineSegment(V(-85, -32.486173, 0), V(-85, -47.486173, 0)), False)
sketch4.addGeometry(Part.LineSegment(V(-85, -47.486173, 0), V(-80, -47.486173, 0)), False)
sketch4.addGeometry(Part.LineSegment(V(-80, -47.486173, 0), V(-80, -90.011173, 0)), False)
sketch4.addConstraint(Sketcher.Constraint("Coincident", 0, 2, 1, 1))
sketch4.addConstraint(Sketcher.Constraint("Coincident", 1, 2, 2, 1))
sketch4.addConstraint(Sketcher.Constraint("Coincident", 2, 2, 3, 1))
sketch4.addConstraint(Sketcher.Constraint("Coincident", 3, 2, 4, 1))
sketch4.addConstraint(Sketcher.Constraint("Coincident", 4, 2, 5, 1))
sketch4.addConstraint(Sketcher.Constraint("Coincident", 5, 2, 6, 1))
sketch4.addConstraint(Sketcher.Constraint("Coincident", 6, 2, 7, 1))
sketch4.addConstraint(Sketcher.Constraint("Coincident", 7, 2, 8, 1))
sketch4.addConstraint(Sketcher.Constraint("Coincident", 8, 2, 9, 1))
sketch4.addConstraint(Sketcher.Constraint("Coincident", 9, 2, 10, 1))
sketch4.addConstraint(Sketcher.Constraint("Coincident", 10, 2, 11, 1))
sketch4.addConstraint(Sketcher.Constraint("Coincident", 11, 2, 0, 1))
sketch4.addConstraint(Sketcher.Constraint("Horizontal", 0))
sketch4.addConstraint(Sketcher.Constraint("Vertical", 1))
sketch4.addConstraint(Sketcher.Constraint("Horizontal", 2))
sketch4.addConstraint(Sketcher.Constraint("Vertical", 3))
sketch4.addConstraint(Sketcher.Constraint("Horizontal", 4))
sketch4.addConstraint(Sketcher.Constraint("Vertical", 5))
sketch4.addConstraint(Sketcher.Constraint("Vertical", 7))
sketch4.addConstraint(Sketcher.Constraint("Horizontal", 8))
sketch4.addConstraint(Sketcher.Constraint("Vertical", 9))
sketch4.addConstraint(Sketcher.Constraint("Horizontal", 10))
sketch4.addConstraint(Sketcher.Constraint("Vertical", 11))
sketch4.addConstraint(Sketcher.Constraint("PointOnObject", 0, 2, -2))
sketch4.addConstraint(Sketcher.Constraint("PointOnObject", 4, 2, -2))
sketch4.addConstraint(Sketcher.Constraint("Horizontal", 4, 2, 7, 2))
sketch4.addConstraint(Sketcher.Constraint("Horizontal", 2, 2, 9, 2))
sketch4.addConstraint(Sketcher.Constraint("Vertical", 7, 2, 10, 2))
sketch4.addConstraint(Sketcher.Constraint("Equal", 4, 8))
sketch4.addConstraint(Sketcher.Constraint("DistanceX", 0, 1, 0, 2, Q("80 mm")))
sketch4.addConstraint(Sketcher.Constraint("DistanceX", 2, 1, 2, 2, Q("5 mm")))
sketch4.addConstraint(Sketcher.Constraint("DistanceY", 3, 1, 3, 2, Q("15 mm")))
sketch4.addConstraint(Sketcher.Constraint("DistanceY", -1, 1, 5, 2, Q("5 mm")))
sketch4.addConstraint(Sketcher.Constraint("DistanceY", 6, 2, -1, 1, Q("0.6 mm")))
sketch4.addConstraint(Sketcher.Constraint("DistanceY", 1, 1, 1, 2, Q("42.525 mm")))
sketch4.addConstraint(Sketcher.Constraint("DistanceY", 5, 1, 5, 2, Q("37.486173 mm")))
pad4 = body4.newObject("PartDesign::Pad", "Pad003")
pad4.Profile = sketch4
pad4.Length = 5
pad4.Reversed = True

doc.recompute()
